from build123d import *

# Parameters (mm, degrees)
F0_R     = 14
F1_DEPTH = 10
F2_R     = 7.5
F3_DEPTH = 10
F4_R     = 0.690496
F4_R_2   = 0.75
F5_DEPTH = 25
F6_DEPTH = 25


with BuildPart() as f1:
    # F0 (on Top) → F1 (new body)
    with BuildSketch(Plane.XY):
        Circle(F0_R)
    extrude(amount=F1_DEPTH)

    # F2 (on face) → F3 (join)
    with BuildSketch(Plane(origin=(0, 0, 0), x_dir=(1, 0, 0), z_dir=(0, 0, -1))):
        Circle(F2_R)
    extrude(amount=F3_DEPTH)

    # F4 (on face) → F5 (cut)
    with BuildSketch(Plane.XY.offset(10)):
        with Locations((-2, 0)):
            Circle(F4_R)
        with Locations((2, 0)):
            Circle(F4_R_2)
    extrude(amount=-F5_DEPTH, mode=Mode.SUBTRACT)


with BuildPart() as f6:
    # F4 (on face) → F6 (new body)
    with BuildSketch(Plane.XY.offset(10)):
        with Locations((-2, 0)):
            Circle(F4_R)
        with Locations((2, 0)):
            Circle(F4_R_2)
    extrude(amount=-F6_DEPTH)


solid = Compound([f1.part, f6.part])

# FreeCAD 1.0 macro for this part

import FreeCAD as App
import Part
import Sketcher

V = App.Vector
Q = App.Units.Quantity

doc = App.newDocument("Part")
body = doc.addObject("PartDesign::Body", "Body")

sketch1 = body.newObject("Sketcher::SketchObject", "Sketch")
sketch1.AttachmentSupport = (doc.getObject("XY_Plane"), [""])
sketch1.MapMode = "FlatFace"
sketch1.addGeometry(Part.Circle(V(0, 0, 0), V(0, 0, 1), 14), False)
sketch1.addConstraint(Sketcher.Constraint("Coincident", 0, 3, -1, 1))
sketch1.addConstraint(Sketcher.Constraint("Diameter", 0, Q("28 mm")))
pad1 = body.newObject("PartDesign::Pad", "Pad")
pad1.Profile = sketch1
pad1.Length = 10

sketch2 = body.newObject("Sketcher::SketchObject", "Sketch001")
sketch2.AttachmentSupport = (doc.getObject("XY_Plane"), [""])
sketch2.MapMode = "FlatFace"
sketch2.addGeometry(Part.Circle(V(0, 0, 0), V(0, 0, 1), 8), False)
sketch2.addConstraint(Sketcher.Constraint("Coincident", 0, 3, -1, 1))
sketch2.addConstraint(Sketcher.Constraint("Diameter", 0, Q("15 mm")))
pad2 = body.newObject("PartDesign::Pad", "Pad001")
pad2.Profile = sketch2
pad2.Length = 10
pad2.Reversed = True

sketch3 = body.newObject("Sketcher::SketchObject", "Sketch002")
sketch3.AttachmentSupport = (doc.getObject("XY_Plane"), [""])
sketch3.MapMode = "FlatFace"
sketch3.AttachmentOffset = App.Placement(V(0, 0, 10), App.Rotation())
sketch3.addGeometry(Part.Circle(V(-2, 0, 0), V(0, 0, 1), 0.7), False)
sketch3.addGeometry(Part.Circle(V(2, 0, 0), V(0, 0, 1), 0.8), False)
sketch3.addConstraint(Sketcher.Constraint("Symmetric", 0, 3, 1, 3, -1, 1))
sketch3.addConstraint(Sketcher.Constraint("PointOnObject", 0, 3, -1))
sketch3.addConstraint(Sketcher.Constraint("Diameter", 1, Q("1.5 mm")))
sketch3.addConstraint(Sketcher.Constraint("DistanceX", 0, 3, -1, 1, Q("2 mm")))
sketch3.addConstraint(Sketcher.Constraint("Diameter", 0, Q("1.380992 mm")))
pocket1 = body.newObject("PartDesign::Pocket", "Pocket")
pocket1.Profile = sketch3
pocket1.Length = 25
body2 = doc.addObject("PartDesign::Body", "Body001")
body2.AllowCompound = True

sketch4 = body2.newObject("Sketcher::SketchObject", "Sketch003")
sketch4.AttachmentSupport = (doc.getObject("XY_Plane001"), [""])
sketch4.MapMode = "FlatFace"
sketch4.AttachmentOffset = App.Placement(V(0, 0, 10), App.Rotation())
sketch4.addGeometry(Part.Circle(V(-2, 0, 0), V(0, 0, 1), 0.7), False)
sketch4.addGeometry(Part.Circle(V(2, 0, 0), V(0, 0, 1), 0.8), False)
sketch4.addConstraint(Sketcher.Constraint("Symmetric", 0, 3, 1, 3, -1, 1))
sketch4.addConstraint(Sketcher.Constraint("PointOnObject", 0, 3, -1))
sketch4.addConstraint(Sketcher.Constraint("Diameter", 1, Q("1.5 mm")))
sketch4.addConstraint(Sketcher.Constraint("DistanceX", 0, 3, -1, 1, Q("2 mm")))
sketch4.addConstraint(Sketcher.Constraint("Diameter", 0, Q("1.380992 mm")))
pad3 = body2.newObject("PartDesign::Pad", "Pad002")
pad3.Profile = sketch4
pad3.Length = 25
pad3.Reversed = True

doc.recompute()
